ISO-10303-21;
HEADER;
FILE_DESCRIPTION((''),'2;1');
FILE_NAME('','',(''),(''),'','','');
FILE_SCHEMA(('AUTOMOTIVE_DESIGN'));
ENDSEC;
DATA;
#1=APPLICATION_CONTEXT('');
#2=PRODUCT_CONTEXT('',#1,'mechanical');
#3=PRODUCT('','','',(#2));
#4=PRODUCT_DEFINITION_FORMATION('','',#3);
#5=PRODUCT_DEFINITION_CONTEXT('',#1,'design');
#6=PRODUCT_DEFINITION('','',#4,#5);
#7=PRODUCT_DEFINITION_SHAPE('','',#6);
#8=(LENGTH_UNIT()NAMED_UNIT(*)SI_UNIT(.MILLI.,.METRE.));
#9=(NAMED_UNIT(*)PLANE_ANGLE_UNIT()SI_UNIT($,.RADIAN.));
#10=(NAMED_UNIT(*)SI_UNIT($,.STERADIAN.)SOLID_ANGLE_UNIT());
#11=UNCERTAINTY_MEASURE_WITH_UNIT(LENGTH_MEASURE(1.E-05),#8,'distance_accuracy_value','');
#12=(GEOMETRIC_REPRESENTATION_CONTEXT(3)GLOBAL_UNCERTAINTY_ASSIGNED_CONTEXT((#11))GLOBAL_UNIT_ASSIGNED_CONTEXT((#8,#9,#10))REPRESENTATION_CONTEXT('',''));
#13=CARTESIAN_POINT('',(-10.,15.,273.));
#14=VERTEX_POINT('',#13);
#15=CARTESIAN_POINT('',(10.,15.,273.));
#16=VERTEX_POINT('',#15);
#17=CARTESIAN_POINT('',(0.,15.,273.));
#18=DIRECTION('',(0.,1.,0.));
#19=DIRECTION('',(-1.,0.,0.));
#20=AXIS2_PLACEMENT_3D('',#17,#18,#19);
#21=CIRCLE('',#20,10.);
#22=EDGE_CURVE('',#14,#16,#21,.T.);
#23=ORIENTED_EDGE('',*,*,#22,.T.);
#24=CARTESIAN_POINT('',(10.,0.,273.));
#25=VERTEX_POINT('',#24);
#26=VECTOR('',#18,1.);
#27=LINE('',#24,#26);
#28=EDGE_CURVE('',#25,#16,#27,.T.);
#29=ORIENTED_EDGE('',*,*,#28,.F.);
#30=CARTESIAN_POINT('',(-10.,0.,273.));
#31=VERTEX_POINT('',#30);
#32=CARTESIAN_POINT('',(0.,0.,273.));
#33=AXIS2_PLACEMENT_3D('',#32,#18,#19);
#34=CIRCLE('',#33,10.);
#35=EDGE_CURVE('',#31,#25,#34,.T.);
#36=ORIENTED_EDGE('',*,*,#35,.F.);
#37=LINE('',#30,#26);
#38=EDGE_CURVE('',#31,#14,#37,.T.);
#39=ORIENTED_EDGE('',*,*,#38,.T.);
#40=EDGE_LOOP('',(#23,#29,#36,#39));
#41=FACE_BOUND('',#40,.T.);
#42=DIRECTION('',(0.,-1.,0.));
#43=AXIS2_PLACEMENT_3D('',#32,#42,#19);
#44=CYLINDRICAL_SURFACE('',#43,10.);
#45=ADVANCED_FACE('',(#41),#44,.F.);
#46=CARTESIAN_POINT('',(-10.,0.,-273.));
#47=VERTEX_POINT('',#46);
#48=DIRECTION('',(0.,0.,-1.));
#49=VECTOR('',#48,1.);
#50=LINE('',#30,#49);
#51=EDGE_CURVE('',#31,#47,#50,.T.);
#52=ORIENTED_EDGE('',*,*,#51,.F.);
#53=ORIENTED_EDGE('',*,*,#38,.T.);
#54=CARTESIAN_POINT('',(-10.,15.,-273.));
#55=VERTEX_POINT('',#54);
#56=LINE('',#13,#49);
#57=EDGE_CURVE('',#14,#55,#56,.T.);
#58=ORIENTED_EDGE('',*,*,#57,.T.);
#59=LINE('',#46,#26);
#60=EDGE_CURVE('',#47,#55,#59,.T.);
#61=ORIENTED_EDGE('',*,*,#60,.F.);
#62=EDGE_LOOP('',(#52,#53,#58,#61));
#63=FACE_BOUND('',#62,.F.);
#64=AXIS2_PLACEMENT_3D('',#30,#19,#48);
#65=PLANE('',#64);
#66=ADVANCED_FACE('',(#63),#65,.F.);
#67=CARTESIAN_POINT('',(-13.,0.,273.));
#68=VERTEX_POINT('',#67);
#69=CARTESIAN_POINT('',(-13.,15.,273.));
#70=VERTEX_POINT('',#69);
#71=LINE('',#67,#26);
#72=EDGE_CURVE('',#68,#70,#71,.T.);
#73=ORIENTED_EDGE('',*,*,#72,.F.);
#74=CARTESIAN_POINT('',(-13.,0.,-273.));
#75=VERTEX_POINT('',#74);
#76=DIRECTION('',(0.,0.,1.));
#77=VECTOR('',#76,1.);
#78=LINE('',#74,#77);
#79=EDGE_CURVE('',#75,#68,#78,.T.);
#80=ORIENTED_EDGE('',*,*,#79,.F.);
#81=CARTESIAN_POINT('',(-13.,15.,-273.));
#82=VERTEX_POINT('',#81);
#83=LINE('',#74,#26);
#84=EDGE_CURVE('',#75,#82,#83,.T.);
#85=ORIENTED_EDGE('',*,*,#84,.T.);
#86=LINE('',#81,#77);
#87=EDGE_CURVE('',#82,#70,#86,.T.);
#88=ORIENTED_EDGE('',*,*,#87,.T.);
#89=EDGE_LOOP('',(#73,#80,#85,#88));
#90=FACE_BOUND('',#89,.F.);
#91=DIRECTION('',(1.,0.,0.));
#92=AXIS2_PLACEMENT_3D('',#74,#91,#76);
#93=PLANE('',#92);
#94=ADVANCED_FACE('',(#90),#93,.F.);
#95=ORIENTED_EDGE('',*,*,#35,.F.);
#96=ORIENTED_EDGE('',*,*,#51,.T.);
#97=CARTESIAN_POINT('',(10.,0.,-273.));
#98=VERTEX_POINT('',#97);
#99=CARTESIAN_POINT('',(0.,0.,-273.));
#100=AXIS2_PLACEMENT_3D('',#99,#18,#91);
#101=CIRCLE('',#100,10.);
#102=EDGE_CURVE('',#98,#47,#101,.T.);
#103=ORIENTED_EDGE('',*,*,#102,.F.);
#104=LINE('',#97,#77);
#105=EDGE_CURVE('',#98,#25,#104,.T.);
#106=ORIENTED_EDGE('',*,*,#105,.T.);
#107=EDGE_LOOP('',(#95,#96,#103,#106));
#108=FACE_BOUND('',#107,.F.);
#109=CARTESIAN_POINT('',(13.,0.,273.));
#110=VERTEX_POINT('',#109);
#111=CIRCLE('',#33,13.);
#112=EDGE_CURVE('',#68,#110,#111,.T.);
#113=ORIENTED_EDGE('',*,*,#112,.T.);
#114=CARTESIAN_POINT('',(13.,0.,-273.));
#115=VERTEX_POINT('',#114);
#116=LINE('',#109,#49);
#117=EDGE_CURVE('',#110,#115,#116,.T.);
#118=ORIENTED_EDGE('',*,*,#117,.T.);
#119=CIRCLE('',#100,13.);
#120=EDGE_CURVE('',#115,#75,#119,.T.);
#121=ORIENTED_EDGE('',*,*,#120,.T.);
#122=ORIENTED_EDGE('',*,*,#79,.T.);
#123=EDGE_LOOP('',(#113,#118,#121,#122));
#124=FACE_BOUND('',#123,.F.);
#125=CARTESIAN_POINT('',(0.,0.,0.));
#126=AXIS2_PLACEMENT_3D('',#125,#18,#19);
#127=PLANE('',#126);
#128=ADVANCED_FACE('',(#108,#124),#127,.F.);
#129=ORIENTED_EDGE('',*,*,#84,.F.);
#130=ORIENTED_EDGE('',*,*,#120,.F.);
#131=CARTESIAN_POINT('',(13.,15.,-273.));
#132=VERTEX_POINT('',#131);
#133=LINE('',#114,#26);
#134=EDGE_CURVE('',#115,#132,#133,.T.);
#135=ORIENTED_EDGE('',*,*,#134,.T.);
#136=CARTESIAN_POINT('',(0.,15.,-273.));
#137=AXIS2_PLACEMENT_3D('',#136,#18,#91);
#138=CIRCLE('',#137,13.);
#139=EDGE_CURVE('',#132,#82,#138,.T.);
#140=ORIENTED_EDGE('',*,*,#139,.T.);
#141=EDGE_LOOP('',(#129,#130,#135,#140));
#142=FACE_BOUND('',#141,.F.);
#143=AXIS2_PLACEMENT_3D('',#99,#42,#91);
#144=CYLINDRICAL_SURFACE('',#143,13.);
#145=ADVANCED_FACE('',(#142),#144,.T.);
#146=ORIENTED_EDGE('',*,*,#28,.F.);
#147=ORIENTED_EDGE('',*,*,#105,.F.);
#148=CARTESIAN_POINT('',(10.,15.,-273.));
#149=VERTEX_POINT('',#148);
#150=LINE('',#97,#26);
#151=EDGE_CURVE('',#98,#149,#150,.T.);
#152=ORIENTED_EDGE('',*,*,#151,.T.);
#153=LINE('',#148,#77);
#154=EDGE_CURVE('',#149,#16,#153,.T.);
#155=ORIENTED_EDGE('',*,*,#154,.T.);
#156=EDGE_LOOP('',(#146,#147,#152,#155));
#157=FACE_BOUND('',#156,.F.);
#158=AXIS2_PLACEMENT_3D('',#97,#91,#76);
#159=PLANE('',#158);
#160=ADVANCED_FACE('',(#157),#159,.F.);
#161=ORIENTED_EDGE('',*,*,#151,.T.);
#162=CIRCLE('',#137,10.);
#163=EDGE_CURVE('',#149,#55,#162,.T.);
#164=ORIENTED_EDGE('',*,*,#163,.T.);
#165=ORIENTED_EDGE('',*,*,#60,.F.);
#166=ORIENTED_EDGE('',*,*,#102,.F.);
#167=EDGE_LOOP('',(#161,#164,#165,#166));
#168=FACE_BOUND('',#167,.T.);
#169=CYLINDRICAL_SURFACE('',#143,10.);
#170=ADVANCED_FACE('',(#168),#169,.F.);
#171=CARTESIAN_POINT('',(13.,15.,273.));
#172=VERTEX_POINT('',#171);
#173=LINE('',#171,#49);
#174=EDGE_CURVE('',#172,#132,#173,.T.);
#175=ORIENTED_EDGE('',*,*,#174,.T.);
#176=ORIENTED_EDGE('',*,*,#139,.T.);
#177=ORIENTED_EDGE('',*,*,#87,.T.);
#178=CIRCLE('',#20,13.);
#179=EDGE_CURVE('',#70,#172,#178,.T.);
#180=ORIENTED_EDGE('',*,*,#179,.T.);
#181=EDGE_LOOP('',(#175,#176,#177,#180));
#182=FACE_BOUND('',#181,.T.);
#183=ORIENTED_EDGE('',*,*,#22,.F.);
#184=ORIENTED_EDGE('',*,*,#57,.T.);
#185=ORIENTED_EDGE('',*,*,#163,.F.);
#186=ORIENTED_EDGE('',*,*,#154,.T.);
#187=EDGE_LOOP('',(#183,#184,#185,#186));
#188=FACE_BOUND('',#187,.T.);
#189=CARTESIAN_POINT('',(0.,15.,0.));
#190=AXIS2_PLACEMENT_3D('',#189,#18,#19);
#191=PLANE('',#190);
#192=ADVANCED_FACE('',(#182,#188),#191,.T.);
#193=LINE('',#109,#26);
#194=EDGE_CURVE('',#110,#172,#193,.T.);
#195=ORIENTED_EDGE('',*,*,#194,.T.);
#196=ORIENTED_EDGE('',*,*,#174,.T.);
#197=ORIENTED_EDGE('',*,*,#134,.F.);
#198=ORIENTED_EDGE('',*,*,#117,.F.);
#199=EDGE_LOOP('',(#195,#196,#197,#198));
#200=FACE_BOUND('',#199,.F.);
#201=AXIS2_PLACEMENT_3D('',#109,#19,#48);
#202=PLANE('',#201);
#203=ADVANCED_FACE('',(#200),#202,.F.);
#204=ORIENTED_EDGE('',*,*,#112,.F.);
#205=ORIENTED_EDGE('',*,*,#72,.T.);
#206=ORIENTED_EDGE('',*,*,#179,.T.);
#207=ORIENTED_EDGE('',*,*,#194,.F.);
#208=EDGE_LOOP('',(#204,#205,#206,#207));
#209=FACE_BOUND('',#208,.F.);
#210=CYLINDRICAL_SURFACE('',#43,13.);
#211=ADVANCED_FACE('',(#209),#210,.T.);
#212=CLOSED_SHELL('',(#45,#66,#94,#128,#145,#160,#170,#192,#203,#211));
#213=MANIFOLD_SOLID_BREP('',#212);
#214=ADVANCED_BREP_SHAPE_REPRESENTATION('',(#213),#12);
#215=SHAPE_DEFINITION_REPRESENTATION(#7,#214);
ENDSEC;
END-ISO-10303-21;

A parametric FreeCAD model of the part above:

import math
import FreeCAD as App
import Part
import Sketcher

V = App.Vector
Q = App.Units.Quantity

doc = App.newDocument("Part")
params = doc.addObject("Spreadsheet::Sheet", "Params")
for row, (alias, value) in enumerate([
    ("sketch1_radius", "10 mm"),
    ("sketch1_height", "546 mm"),
    ("sketch1_radius2", "13 mm"),
    ("pad1_length", "15 mm"),
], start=1):
    params.set(f"A{row}", alias)
    params.set(f"B{row}", "=" + value)
    params.setAlias(f"B{row}", alias)

body = doc.addObject("PartDesign::Body", "Body")

sketch1 = body.newObject("Sketcher::SketchObject", "Sketch")
sketch1.AttachmentSupport = (doc.getObject("XZ_Plane"), [""])
sketch1.MapMode = "FlatFace"
sketch1.addGeometry([
    Part.ArcOfCircle(Part.Circle(V(0, -273, 0), V(0, 0, 1), 13), math.radians(180), math.radians(360)),
    Part.LineSegment(V(-13, -273, 0), V(-13, 273, 0)),
    Part.ArcOfCircle(Part.Circle(V(0, 273, 0), V(0, 0, 1), 13), math.radians(0), math.radians(180)),
    Part.LineSegment(V(13, 273, 0), V(13, -273, 0)),
    Part.ArcOfCircle(Part.Circle(V(0, 273, 0), V(0, 0, 1), 10), math.radians(0), math.radians(180)),
    Part.LineSegment(V(-10, 273, 0), V(-10, -273, 0)),
    Part.ArcOfCircle(Part.Circle(V(0, -273, 0), V(0, 0, 1), 10), math.radians(180), math.radians(360)),
    Part.LineSegment(V(10, -273, 0), V(10, 273, 0)),
], False)
sketch1.addConstraint([
    Sketcher.Constraint("Tangent", 0, 1, 1, 1),
    Sketcher.Constraint("Tangent", 1, 2, 2, 2),
    Sketcher.Constraint("Tangent", 2, 1, 3, 1),
    Sketcher.Constraint("Tangent", 3, 2, 0, 2),
    Sketcher.Constraint("Tangent", 4, 2, 5, 1),
    Sketcher.Constraint("Tangent", 5, 2, 6, 1),
    Sketcher.Constraint("Tangent", 6, 2, 7, 1),
    Sketcher.Constraint("Tangent", 7, 2, 4, 1),
    Sketcher.Constraint("Vertical", 1),
    Sketcher.Constraint("Vertical", 3),
    Sketcher.Constraint("Vertical", 5),
    Sketcher.Constraint("Vertical", 7),
    Sketcher.Constraint("Coincident", 4, 3, 2, 3),
    Sketcher.Constraint("Symmetric", 0, 3, 2, 3, -1, 1),
    Sketcher.Constraint("Horizontal", 6, 3, 0, 1),
    Sketcher.Constraint("Radius", 4, Q("10 mm")),
    Sketcher.Constraint("DistanceY", 1, 1, 1, 2, Q("546 mm")),
    Sketcher.Constraint("Radius", 0, Q("13 mm")),
])
sketch1.setExpression("Constraints[15]", "Params.sketch1_radius")
sketch1.setExpression("Constraints[16]", "Params.sketch1_height")
sketch1.setExpression("Constraints[17]", "Params.sketch1_radius2")
pad1 = body.newObject("PartDesign::Pad", "Pad")
pad1.Profile = sketch1
pad1.setExpression("Length", "Params.pad1_length")
pad1.Reversed = True

doc.recompute()
